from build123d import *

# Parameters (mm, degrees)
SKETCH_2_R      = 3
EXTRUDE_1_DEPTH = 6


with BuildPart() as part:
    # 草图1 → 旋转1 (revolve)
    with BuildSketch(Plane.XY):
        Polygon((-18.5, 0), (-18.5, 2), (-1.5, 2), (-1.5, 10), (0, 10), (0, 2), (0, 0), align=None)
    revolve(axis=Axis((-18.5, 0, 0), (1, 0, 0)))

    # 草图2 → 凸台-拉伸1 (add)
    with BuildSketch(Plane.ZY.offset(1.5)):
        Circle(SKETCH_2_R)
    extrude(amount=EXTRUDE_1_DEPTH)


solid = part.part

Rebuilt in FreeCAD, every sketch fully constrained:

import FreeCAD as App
import Part
import Sketcher

V = App.Vector

doc = App.newDocument("Part")
body = doc.addObject("PartDesign::Body", "Body")

# Sketch on XY plane
sketch1 = doc.addObject("Sketcher::SketchObject", "Sketch")
body.addObject(sketch1)
sketch1.AttachmentSupport = (doc.XY_Plane, [""])
sketch1.MapMode = "FlatFace"
sketch1.addGeometry([
    Part.LineSegment(V(-18.5, 2, 0), V(-18.5, 0, 0)),  # 0
    Part.LineSegment(V(-18.5, 0, 0), V(0, 0, 0)),  # 1
    Part.LineSegment(V(0, 0, 0), V(0, 10, 0)),  # 2
    Part.LineSegment(V(0, 10, 0), V(-1.5, 10, 0)),  # 3
    Part.LineSegment(V(-1.5, 10, 0), V(-1.5, 2, 0)),  # 4
    Part.LineSegment(V(-1.5, 2, 0), V(-18.5, 2, 0)),  # 5
], False)
sketch1.addConstraint([
    Sketcher.Constraint("Coincident", 0, 2, 1, 1),
    Sketcher.Constraint("Coincident", 1, 2, 2, 1),
    Sketcher.Constraint("Coincident", 2, 2, 3, 1),
    Sketcher.Constraint("Coincident", 3, 2, 4, 1),
    Sketcher.Constraint("Coincident", 4, 2, 5, 1),
    Sketcher.Constraint("Coincident", 5, 2, 0, 1),
    Sketcher.Constraint("Vertical", 0),
    Sketcher.Constraint("Horizontal", 1),
    Sketcher.Constraint("Vertical", 2),
    Sketcher.Constraint("Horizontal", 3),
    Sketcher.Constraint("Vertical", 4),
    Sketcher.Constraint("Horizontal", 5),
    Sketcher.Constraint("Coincident", 1, 2, -1, 1),
    Sketcher.Constraint("DistanceX", 5, 2, 5, 1, 17.0),
    Sketcher.Constraint("DistanceY", 0, 2, 0, 1, 2.0),
    Sketcher.Constraint("DistanceY", 2, 1, 2, 2, 10.0),
    Sketcher.Constraint("DistanceX", 1, 1, 1, 2, 18.5),
])
revolution = doc.addObject("PartDesign::Revolution", "Revolution")
body.addObject(revolution)
revolution.Profile = sketch1
revolution.ReferenceAxis = (sketch1, ["H_Axis"])
revolution.Angle = 360

# Sketch on YZ plane
sketch2 = doc.addObject("Sketcher::SketchObject", "Sketch001")
body.addObject(sketch2)
sketch2.AttachmentSupport = (doc.YZ_Plane, [""])
sketch2.MapMode = "FlatFace"
sketch2.AttachmentOffset = App.Placement(V(0, 0, -1.5), App.Rotation())
sketch2.addGeometry(Part.Circle(V(0, 0, 0), V(0, 0, 1), 3), False)
sketch2.addConstraint([
    Sketcher.Constraint("Coincident", 0, 3, -1, 1),
    Sketcher.Constraint("Diameter", 0, 6.0),
])
pad1 = doc.addObject("PartDesign::Pad", "Pad")
body.addObject(pad1)
pad1.Profile = sketch2
pad1.Length = 6
pad1.Reversed = True

doc.recompute()
